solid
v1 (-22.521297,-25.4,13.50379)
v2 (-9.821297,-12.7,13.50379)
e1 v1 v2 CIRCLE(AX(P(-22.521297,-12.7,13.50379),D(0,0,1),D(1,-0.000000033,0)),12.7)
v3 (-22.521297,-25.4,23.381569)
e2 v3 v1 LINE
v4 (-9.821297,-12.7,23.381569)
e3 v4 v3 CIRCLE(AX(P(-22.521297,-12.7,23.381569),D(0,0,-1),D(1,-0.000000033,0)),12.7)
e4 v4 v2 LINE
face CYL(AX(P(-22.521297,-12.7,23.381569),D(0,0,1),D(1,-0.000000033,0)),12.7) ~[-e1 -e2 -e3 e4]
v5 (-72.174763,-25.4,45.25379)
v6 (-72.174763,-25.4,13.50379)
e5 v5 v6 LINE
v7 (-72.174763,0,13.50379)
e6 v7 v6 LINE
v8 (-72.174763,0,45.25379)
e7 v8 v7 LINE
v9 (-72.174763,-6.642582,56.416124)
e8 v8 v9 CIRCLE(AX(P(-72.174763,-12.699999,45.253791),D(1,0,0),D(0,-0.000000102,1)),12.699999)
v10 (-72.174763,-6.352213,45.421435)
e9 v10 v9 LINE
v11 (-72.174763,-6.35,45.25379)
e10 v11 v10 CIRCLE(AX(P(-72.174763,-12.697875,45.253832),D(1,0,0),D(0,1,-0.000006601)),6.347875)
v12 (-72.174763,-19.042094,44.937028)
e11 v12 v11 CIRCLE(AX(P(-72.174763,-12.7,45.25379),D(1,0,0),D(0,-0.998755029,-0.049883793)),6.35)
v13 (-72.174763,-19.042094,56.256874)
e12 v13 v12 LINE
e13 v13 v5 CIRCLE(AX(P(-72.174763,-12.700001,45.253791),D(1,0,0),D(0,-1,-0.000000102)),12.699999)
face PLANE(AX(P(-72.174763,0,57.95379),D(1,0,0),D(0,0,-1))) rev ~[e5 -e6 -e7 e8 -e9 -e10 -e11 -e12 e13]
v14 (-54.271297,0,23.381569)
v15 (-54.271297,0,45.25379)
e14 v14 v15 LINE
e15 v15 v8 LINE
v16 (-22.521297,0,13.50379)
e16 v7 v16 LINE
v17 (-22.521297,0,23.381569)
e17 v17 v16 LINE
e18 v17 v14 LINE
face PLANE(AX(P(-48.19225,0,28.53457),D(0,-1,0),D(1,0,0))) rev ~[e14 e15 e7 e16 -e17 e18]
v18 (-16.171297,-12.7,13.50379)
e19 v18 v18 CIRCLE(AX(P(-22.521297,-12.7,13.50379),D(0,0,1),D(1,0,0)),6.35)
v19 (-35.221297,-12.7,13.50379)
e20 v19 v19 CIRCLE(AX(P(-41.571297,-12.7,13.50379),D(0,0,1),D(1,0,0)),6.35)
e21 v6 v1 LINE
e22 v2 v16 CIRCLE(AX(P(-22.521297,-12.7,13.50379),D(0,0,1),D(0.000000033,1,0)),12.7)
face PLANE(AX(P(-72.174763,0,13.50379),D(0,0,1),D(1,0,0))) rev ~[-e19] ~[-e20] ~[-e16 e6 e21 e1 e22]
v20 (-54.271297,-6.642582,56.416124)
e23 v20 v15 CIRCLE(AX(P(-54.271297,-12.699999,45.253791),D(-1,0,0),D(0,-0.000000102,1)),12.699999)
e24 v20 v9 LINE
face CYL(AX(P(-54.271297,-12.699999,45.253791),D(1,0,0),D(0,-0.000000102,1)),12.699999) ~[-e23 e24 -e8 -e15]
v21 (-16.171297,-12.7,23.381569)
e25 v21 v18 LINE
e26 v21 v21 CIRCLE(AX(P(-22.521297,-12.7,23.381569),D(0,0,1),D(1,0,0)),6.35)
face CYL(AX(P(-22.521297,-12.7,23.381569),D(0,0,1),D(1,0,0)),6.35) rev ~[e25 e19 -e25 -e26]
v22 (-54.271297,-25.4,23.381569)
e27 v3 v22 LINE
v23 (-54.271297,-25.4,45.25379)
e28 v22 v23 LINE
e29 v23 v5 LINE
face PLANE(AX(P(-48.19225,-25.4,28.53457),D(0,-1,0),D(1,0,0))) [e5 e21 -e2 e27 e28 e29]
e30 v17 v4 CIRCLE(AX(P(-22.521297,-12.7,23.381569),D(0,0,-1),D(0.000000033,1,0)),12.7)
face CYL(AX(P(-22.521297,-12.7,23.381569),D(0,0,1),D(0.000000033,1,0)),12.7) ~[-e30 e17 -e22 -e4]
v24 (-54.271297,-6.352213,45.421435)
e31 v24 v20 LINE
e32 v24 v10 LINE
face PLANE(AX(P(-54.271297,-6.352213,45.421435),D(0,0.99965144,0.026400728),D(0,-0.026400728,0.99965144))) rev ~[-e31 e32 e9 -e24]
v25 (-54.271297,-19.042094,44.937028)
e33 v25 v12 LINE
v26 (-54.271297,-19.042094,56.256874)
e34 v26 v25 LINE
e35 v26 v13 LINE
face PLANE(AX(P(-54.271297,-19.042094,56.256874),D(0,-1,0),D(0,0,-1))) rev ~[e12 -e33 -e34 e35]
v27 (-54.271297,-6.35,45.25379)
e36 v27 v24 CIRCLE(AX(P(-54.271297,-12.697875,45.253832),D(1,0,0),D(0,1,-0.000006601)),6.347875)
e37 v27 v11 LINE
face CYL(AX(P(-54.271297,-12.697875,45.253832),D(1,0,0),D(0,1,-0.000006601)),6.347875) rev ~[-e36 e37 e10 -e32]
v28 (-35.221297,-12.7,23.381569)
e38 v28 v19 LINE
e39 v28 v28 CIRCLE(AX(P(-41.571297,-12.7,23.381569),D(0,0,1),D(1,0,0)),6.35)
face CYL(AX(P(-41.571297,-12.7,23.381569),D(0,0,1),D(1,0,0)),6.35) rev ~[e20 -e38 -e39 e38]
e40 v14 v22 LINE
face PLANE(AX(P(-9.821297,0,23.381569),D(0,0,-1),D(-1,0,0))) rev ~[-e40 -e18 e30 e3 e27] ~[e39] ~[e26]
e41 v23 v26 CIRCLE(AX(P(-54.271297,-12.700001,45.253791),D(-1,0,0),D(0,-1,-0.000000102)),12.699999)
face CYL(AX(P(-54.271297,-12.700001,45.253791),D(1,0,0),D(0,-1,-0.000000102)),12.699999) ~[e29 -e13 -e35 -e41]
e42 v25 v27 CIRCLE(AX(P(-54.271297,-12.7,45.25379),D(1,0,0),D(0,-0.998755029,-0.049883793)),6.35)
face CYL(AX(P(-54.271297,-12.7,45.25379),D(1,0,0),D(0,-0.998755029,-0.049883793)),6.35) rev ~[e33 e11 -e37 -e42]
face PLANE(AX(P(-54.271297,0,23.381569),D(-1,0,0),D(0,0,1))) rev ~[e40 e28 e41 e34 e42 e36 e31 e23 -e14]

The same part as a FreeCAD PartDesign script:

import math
import FreeCAD as App
import Part
import Sketcher
from FreeCAD import Vector
Q = App.Units.Quantity

doc = App.newDocument("Part")
body = doc.addObject("PartDesign::Body", "Body")

# Sketch on XZ plane
sketch1 = body.newObject("Sketcher::SketchObject", "Sketch")
sketch1.AttachmentSupport = (doc.getObject("XZ_Plane"), [""])
sketch1.MapMode = "FlatFace"
sketch1.addGeometry(Part.LineSegment(Vector(-72.174763, 57.95379, 0), Vector(-72.174763, 13.50379, 0)), False)
sketch1.addGeometry(Part.LineSegment(Vector(-72.174763, 13.50379, 0), Vector(-9.821297, 13.50379, 0)), False)
sketch1.addGeometry(Part.LineSegment(Vector(-9.821297, 13.50379, 0), Vector(-9.821297, 23.381569, 0)), False)
sketch1.addGeometry(Part.LineSegment(Vector(-9.821297, 23.381569, 0), Vector(-54.271297, 23.381569, 0)), False)
sketch1.addGeometry(Part.LineSegment(Vector(-54.271297, 23.381569, 0), Vector(-54.271297, 57.95379, 0)), False)
sketch1.addGeometry(Part.LineSegment(Vector(-54.271297, 57.95379, 0), Vector(-72.174763, 57.95379, 0)), False)
sketch1.addConstraint(Sketcher.Constraint("Coincident", 0, 2, 1, 1))
sketch1.addConstraint(Sketcher.Constraint("Coincident", 1, 2, 2, 1))
sketch1.addConstraint(Sketcher.Constraint("Coincident", 2, 2, 3, 1))
sketch1.addConstraint(Sketcher.Constraint("Coincident", 3, 2, 4, 1))
sketch1.addConstraint(Sketcher.Constraint("Coincident", 4, 2, 5, 1))
sketch1.addConstraint(Sketcher.Constraint("Coincident", 5, 2, 0, 1))
sketch1.addConstraint(Sketcher.Constraint("Vertical", 0))
sketch1.addConstraint(Sketcher.Constraint("Horizontal", 1))
sketch1.addConstraint(Sketcher.Constraint("Vertical", 2))
sketch1.addConstraint(Sketcher.Constraint("Horizontal", 3))
sketch1.addConstraint(Sketcher.Constraint("Vertical", 4))
sketch1.addConstraint(Sketcher.Constraint("Horizontal", 5))
sketch1.addConstraint(Sketcher.Constraint("Equal", 3, 0))
sketch1.addConstraint(Sketcher.Constraint("DistanceX", 3, 2, 3, 1, Q("1.75 in")))
sketch1.addConstraint(Sketcher.Constraint("DistanceY", 2, 1, 2, 2, 9.877779))
sketch1.addConstraint(Sketcher.Constraint("DistanceX", 1, 1, 1, 2, 62.353466))
sketch1.addConstraint(Sketcher.Constraint("DistanceY", -1, 1, 0, 2, 13.50379))
sketch1.addConstraint(Sketcher.Constraint("DistanceX", 0, 2, -1, 1, 72.174763))
pad1 = body.newObject("PartDesign::Pad", "Pad")
pad1.Profile = sketch1
pad1.Length = Q("1 in")

# Sketch on XY plane
sketch2 = body.newObject("Sketcher::SketchObject", "Sketch001")
sketch2.AttachmentSupport = (doc.getObject("XY_Plane"), [""])
sketch2.MapMode = "FlatFace"
sketch2.AttachmentOffset = App.Placement(Vector(0, 0, 23.381569), App.Rotation())
sketch2.addGeometry(Part.LineSegment(Vector(-9.821297, -12.7, 0), Vector(-9.821297, 0, 0)), False)
sketch2.addGeometry(Part.LineSegment(Vector(-9.821297, 0, 0), Vector(-22.521297, 0, 0)), False)
sketch2.addGeometry(Part.ArcOfCircle(Part.Circle(Vector(-22.521297, -12.7, 0), Vector(0, 0, 1), 12.7), math.radians(0.000002), math.radians(89.999998)), False)
sketch2.addGeometry(Part.LineSegment(Vector(-9.821297, -25.4, 0), Vector(-9.821297, -12.7, 0)), False)
sketch2.addGeometry(Part.ArcOfCircle(Part.Circle(Vector(-22.521297, -12.7, 0), Vector(0, 0, 1), 12.7), math.radians(-89.999998), math.radians(-0.000002)), False)
sketch2.addGeometry(Part.LineSegment(Vector(-22.521297, -25.4, 0), Vector(-9.821297, -25.4, 0)), False)
sketch2.addConstraint(Sketcher.Constraint("Coincident", 0, 2, 1, 1))
sketch2.addConstraint(Sketcher.Constraint("Tangent", 1, 2, 2, 2))
sketch2.addConstraint(Sketcher.Constraint("Tangent", 2, 1, 0, 1))
sketch2.addConstraint(Sketcher.Constraint("Tangent", 3, 2, 4, 2))
sketch2.addConstraint(Sketcher.Constraint("Tangent", 4, 1, 5, 1))
sketch2.addConstraint(Sketcher.Constraint("Coincident", 5, 2, 3, 1))
sketch2.addConstraint(Sketcher.Constraint("Vertical", 0))
sketch2.addConstraint(Sketcher.Constraint("Horizontal", 1))
sketch2.addConstraint(Sketcher.Constraint("Vertical", 3))
sketch2.addConstraint(Sketcher.Constraint("Horizontal", 5))
sketch2.addConstraint(Sketcher.Constraint("Coincident", 4, 3, 2, 3))
sketch2.addConstraint(Sketcher.Constraint("Equal", 2, 4))
sketch2.addConstraint(Sketcher.Constraint("PointOnObject", 0, 2, -1))
sketch2.addConstraint(Sketcher.Constraint("Radius", 2, Q("0.5 in")))
sketch2.addConstraint(Sketcher.Constraint("DistanceX", 2, 3, -1, 1, 22.521297))
pocket1 = body.newObject("PartDesign::Pocket", "Pocket")
pocket1.Profile = sketch2
pocket1.Type = "ThroughAll"

# Sketch on YZ plane
sketch3 = body.newObject("Sketcher::SketchObject", "Sketch002")
sketch3.AttachmentSupport = (doc.getObject("YZ_Plane"), [""])
sketch3.MapMode = "FlatFace"
sketch3.AttachmentOffset = App.Placement(Vector(0, 0, -54.271297), App.Rotation())
sketch3.addGeometry(Part.LineSegment(Vector(-12.7, 57.95379, 0), Vector(-25.4, 57.95379, 0)), False)
sketch3.addGeometry(Part.LineSegment(Vector(-25.4, 57.95379, 0), Vector(-25.4, 45.25379, 0)), False)
sketch3.addGeometry(Part.ArcOfCircle(Part.Circle(Vector(-12.700001, 45.253791, 0), Vector(0, 0, 1), 12.699999), math.radians(89.999994), math.radians(180.000006)), False)
sketch3.addGeometry(Part.LineSegment(Vector(0, 57.95379, 0), Vector(-12.7, 57.95379, 0)), False)
sketch3.addGeometry(Part.ArcOfCircle(Part.Circle(Vector(-12.699999, 45.253791, 0), Vector(0, 0, 1), 12.699999), math.radians(-0.000006), math.radians(90.000006)), False)
sketch3.addGeometry(Part.LineSegment(Vector(0, 45.25379, 0), Vector(0, 57.95379, 0)), False)
sketch3.addConstraint(Sketcher.Constraint("Coincident", 0, 2, 1, 1))
sketch3.addConstraint(Sketcher.Constraint("Tangent", 1, 2, 2, 2))
sketch3.addConstraint(Sketcher.Constraint("Tangent", 2, 1, 0, 1))
sketch3.addConstraint(Sketcher.Constraint("Tangent", 3, 2, 4, 2))
sketch3.addConstraint(Sketcher.Constraint("Tangent", 4, 1, 5, 1))
sketch3.addConstraint(Sketcher.Constraint("Coincident", 5, 2, 3, 1))
sketch3.addConstraint(Sketcher.Constraint("Horizontal", 0))
sketch3.addConstraint(Sketcher.Constraint("Vertical", 1))
sketch3.addConstraint(Sketcher.Constraint("Horizontal", 3))
sketch3.addConstraint(Sketcher.Constraint("Vertical", 5))
sketch3.addConstraint(Sketcher.Constraint("Coincident", 4, 3, 2, 3))
sketch3.addConstraint(Sketcher.Constraint("Equal", 2, 4))
sketch3.addConstraint(Sketcher.Constraint("PointOnObject", 4, 1, -2))
sketch3.addConstraint(Sketcher.Constraint("Radius", 2, Q("0.4999999 in")))
sketch3.addConstraint(Sketcher.Constraint("DistanceY", -1, 1, 2, 3, 45.253791))
pocket2 = body.newObject("PartDesign::Pocket", "Pocket001")
pocket2.Profile = sketch3
pocket2.Type = "ThroughAll"

# Sketch on YZ plane
sketch4 = body.newObject("Sketcher::SketchObject", "Sketch003")
sketch4.AttachmentSupport = (doc.getObject("YZ_Plane"), [""])
sketch4.MapMode = "FlatFace"
sketch4.AttachmentOffset = App.Placement(Vector(0, 0, -54.271297), App.Rotation())
sketch4.addGeometry(Part.LineSegment(Vector(-6.352213, 45.421435, 0), Vector(-6.642582, 56.416124, 0)), False)
sketch4.addGeometry(Part.ArcOfCircle(Part.Circle(Vector(-12.7, 45.253788, 0), Vector(0, 0, 1), 12.700002), math.radians(61.512829), math.radians(119.958817)), False)
sketch4.addGeometry(Part.LineSegment(Vector(-19.042094, 56.256874, 0), Vector(-19.042094, 44.937028, 0)), False)
sketch4.addGeometry(Part.ArcOfCircle(Part.Circle(Vector(-12.7, 45.25379, 0), Vector(0, 0, 1), 6.35), math.radians(-177.140683), math.radians(-0.000001)), False)
sketch4.addGeometry(Part.ArcOfCircle(Part.Circle(Vector(-12.697875, 45.253832, 0), Vector(0, 0, 1), 6.347875), math.radians(-0.000378), math.radians(1.512958)), False)
sketch4.addConstraint(Sketcher.Constraint("Coincident", 0, 2, 1, 1))
sketch4.addConstraint(Sketcher.Constraint("Coincident", 1, 2, 2, 1))
sketch4.addConstraint(Sketcher.Constraint("Coincident", 2, 2, 3, 1))
sketch4.addConstraint(Sketcher.Constraint("Coincident", 3, 2, 4, 1))
sketch4.addConstraint(Sketcher.Constraint("Coincident", 4, 2, 0, 1))
sketch4.addConstraint(Sketcher.Constraint("Vertical", 2))
sketch4.addConstraint(Sketcher.Constraint("Coincident", 3, 3, 1, 3))
sketch4.addConstraint(Sketcher.Constraint("Horizontal", 1, 3, 3, 2))
sketch4.addConstraint(Sketcher.Constraint("Radius", 1, Q("0.5000001 in")))
sketch4.addConstraint(Sketcher.Constraint("Radius", 3, Q("0.25 in")))
sketch4.addConstraint(Sketcher.Constraint("DistanceX", 1, 3, -1, 1, Q("0.5 in")))
sketch4.addConstraint(Sketcher.Constraint("Radius", 4, 6.347875))
sketch4.addConstraint(Sketcher.Constraint("DistanceY", 3, 2, 4, 2, Q("0.0066002 in")))
sketch4.addConstraint(Sketcher.Constraint("DistanceY", 2, 2, 2, 1, 11.319846))
sketch4.addConstraint(Sketcher.Constraint("DistanceY", -1, 1, 1, 3, 45.253788))
sketch4.addConstraint(Sketcher.Constraint("DistanceY", -1, 1, 4, 3, 45.253832))
sketch4.addConstraint(Sketcher.Constraint("DistanceX", 1, 3, 0, 2, 6.057418))
pocket3 = body.newObject("PartDesign::Pocket", "Pocket002")
pocket3.Profile = sketch4
pocket3.Type = "ThroughAll"

# Sketch on XY plane
sketch5 = body.newObject("Sketcher::SketchObject", "Sketch004")
sketch5.AttachmentSupport = (doc.getObject("XY_Plane"), [""])
sketch5.MapMode = "FlatFace"
sketch5.AttachmentOffset = App.Placement(Vector(0, 0, 23.381569), App.Rotation())
sketch5.addGeometry(Part.Circle(Vector(-41.571297, -12.7, 0), Vector(0, 0, 1), 6.35), False)
sketch5.addGeometry(Part.Circle(Vector(-22.521297, -12.7, 0), Vector(0, 0, 1), 6.35), False)
sketch5.addConstraint(Sketcher.Constraint("Equal", 0, 1))
sketch5.addConstraint(Sketcher.Constraint("Horizontal", 0, 3, 1, 3))
sketch5.addConstraint(Sketcher.Constraint("Diameter", 0, Q("0.5 in")))
sketch5.addConstraint(Sketcher.Constraint("DistanceY", 0, 3, -1, 1, Q("0.5 in")))
sketch5.addConstraint(Sketcher.Constraint("DistanceX", 0, 3, 1, 3, Q("0.75 in")))
sketch5.addConstraint(Sketcher.Constraint("DistanceX", 0, 3, -1, 1, 41.571297))
pocket4 = body.newObject("PartDesign::Pocket", "Pocket003")
pocket4.Profile = sketch5
pocket4.Type = "ThroughAll"

doc.recompute()
